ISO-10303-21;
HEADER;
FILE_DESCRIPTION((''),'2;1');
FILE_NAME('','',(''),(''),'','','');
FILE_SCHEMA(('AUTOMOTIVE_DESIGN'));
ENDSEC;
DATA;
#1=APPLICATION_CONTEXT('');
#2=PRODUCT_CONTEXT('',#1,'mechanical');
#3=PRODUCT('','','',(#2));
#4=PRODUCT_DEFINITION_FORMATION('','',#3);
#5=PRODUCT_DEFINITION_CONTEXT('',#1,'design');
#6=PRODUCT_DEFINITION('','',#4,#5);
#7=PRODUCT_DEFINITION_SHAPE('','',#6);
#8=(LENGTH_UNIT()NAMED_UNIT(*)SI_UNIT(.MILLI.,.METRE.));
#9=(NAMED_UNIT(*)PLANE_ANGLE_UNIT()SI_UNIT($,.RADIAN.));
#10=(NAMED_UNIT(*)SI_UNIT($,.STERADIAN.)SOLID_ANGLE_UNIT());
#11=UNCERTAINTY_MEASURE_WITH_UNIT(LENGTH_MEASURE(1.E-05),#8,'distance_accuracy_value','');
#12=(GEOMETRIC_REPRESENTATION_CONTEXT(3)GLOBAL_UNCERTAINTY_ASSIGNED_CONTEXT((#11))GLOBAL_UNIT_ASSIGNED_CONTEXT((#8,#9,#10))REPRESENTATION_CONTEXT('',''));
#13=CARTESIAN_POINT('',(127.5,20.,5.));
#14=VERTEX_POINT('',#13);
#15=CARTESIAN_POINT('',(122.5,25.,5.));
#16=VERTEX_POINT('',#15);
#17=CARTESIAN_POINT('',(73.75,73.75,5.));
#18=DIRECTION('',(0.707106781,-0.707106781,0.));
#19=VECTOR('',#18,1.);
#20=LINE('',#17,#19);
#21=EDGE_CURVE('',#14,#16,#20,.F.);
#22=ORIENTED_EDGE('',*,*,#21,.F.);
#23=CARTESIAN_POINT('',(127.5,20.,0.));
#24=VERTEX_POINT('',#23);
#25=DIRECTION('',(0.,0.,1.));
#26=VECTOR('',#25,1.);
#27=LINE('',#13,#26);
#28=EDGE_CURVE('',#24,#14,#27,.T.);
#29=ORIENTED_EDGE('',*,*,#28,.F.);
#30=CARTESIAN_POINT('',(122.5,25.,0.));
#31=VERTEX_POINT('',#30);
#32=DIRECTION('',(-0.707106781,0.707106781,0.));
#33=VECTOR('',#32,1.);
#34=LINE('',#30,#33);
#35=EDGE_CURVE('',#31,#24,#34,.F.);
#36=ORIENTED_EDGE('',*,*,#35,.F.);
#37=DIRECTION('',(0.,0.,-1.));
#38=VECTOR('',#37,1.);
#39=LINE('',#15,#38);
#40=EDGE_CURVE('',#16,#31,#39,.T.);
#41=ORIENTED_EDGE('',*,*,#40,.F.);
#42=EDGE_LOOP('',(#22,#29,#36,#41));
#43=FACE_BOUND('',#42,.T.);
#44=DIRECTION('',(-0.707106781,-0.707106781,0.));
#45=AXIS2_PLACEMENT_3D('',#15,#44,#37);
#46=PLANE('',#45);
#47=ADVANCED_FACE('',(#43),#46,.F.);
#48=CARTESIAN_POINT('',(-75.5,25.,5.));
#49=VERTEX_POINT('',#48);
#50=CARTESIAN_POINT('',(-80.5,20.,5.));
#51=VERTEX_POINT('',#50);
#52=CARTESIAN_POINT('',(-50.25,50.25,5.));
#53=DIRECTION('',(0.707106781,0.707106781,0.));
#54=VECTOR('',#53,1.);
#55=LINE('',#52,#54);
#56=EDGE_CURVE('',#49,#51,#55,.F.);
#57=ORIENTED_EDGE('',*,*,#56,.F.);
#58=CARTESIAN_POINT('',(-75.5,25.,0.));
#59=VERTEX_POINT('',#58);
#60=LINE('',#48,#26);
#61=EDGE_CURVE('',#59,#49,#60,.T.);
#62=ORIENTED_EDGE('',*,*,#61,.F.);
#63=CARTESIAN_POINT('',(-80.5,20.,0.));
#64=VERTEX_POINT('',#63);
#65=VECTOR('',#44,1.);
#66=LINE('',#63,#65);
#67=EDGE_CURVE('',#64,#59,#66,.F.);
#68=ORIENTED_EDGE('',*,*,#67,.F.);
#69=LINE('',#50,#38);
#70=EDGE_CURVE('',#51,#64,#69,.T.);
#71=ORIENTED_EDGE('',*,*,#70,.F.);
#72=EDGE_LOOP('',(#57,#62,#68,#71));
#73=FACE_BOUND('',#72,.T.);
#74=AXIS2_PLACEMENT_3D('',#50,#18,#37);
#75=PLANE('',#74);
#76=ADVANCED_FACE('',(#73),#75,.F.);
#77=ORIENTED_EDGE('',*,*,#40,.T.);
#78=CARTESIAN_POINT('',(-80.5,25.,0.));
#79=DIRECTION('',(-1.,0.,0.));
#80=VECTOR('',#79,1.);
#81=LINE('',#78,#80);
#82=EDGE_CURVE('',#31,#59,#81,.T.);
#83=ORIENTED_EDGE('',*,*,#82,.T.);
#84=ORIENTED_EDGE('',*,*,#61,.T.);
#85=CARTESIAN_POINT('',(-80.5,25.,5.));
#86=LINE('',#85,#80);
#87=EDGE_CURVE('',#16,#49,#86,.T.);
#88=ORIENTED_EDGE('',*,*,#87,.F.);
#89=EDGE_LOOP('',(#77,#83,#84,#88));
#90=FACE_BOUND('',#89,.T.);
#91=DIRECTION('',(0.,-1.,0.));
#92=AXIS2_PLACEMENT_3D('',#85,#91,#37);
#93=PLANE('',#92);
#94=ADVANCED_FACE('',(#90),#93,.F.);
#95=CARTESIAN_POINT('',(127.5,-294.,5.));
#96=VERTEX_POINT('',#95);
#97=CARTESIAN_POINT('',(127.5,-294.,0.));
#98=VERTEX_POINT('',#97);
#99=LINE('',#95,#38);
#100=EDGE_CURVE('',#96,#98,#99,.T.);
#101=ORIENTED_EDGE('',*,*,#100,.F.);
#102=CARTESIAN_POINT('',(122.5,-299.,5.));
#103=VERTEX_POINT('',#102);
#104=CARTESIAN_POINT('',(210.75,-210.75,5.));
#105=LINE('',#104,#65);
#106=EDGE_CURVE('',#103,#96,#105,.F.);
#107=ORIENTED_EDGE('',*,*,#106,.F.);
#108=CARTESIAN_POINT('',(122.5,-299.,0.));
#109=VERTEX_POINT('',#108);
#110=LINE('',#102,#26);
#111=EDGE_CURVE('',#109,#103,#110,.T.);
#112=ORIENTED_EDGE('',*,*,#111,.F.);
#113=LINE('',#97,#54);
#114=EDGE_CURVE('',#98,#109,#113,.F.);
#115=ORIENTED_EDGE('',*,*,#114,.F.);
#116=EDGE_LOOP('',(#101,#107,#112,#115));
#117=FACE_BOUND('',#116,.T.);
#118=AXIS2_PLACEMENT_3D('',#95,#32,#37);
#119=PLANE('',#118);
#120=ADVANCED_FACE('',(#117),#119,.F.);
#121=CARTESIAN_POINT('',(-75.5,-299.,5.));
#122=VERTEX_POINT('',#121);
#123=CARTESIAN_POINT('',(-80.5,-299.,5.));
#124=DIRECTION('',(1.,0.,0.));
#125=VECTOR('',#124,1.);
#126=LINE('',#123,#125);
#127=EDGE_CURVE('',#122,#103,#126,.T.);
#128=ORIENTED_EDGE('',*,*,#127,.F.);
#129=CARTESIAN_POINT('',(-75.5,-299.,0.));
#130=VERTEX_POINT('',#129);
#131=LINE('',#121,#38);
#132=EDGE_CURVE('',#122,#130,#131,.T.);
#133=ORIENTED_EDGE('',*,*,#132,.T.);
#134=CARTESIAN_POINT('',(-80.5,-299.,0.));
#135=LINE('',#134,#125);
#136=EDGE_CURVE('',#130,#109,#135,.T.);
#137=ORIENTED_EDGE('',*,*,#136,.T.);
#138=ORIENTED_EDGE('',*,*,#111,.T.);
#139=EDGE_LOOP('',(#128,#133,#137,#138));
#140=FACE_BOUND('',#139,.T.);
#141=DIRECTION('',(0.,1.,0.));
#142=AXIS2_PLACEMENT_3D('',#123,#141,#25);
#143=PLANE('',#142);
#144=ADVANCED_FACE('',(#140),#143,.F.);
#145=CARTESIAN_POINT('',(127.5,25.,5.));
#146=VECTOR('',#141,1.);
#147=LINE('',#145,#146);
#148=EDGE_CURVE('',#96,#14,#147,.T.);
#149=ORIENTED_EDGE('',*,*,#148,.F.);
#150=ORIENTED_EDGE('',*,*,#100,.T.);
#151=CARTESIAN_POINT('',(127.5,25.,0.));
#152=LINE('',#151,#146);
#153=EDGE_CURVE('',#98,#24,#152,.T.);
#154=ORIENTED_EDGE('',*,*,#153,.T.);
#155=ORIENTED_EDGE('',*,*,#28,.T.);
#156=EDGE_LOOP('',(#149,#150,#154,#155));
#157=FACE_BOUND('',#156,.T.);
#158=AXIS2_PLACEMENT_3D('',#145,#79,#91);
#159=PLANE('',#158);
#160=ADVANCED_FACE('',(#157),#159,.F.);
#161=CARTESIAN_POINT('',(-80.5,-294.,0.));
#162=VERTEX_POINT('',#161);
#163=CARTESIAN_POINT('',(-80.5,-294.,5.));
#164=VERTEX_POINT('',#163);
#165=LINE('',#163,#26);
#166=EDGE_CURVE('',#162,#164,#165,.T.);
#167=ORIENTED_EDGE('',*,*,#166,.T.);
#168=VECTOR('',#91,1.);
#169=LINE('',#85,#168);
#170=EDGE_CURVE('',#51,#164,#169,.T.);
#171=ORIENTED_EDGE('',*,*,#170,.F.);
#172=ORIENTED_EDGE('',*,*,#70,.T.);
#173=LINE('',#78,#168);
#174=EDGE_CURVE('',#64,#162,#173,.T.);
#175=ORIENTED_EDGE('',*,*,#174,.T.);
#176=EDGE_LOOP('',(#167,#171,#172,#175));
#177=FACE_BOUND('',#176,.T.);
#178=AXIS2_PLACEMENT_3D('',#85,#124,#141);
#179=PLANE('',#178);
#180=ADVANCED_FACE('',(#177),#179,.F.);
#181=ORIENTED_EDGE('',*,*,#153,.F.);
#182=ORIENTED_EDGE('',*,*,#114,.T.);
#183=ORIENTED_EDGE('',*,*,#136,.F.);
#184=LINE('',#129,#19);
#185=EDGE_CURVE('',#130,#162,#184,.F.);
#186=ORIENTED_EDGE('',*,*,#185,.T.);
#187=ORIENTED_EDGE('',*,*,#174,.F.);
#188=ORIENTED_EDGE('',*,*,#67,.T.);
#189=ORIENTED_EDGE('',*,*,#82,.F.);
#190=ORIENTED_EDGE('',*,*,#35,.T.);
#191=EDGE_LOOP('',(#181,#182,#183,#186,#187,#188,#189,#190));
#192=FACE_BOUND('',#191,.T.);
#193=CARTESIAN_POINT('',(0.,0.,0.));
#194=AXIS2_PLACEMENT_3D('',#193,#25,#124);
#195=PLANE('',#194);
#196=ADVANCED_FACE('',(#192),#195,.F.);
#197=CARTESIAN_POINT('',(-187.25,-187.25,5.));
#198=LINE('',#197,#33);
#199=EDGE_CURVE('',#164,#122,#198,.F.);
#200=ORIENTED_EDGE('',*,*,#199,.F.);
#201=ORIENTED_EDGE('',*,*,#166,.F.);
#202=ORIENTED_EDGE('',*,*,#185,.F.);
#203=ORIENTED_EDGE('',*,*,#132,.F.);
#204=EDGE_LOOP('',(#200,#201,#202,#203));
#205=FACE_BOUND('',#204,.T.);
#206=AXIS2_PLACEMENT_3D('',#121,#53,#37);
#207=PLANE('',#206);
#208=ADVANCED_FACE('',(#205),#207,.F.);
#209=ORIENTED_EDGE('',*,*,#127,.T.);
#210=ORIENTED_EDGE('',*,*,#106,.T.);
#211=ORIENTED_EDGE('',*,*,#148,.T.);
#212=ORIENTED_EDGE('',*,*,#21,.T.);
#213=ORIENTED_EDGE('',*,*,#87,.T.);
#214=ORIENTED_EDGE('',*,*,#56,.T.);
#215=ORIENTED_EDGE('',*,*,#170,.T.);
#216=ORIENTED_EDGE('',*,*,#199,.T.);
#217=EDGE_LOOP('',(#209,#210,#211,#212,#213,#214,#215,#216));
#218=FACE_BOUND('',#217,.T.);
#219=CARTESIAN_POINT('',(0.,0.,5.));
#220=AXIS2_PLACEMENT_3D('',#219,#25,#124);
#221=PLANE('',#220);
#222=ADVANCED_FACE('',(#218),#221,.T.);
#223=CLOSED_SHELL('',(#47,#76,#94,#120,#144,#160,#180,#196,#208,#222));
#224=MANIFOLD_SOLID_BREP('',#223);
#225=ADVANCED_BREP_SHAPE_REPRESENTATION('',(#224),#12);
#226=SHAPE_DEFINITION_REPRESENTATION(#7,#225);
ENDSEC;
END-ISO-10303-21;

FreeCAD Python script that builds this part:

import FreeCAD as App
import Part
import Sketcher
from FreeCAD import Vector
Q = App.Units.Quantity


def edges_at(feature, points):
    """Names of the edges that pass closest to the given points."""
    edges = feature.Shape.Edges
    near = lambda p: min(range(len(edges)), key=lambda i: edges[i].distToShape(Part.Vertex(*p))[0])
    return sorted({f"Edge{near(p) + 1}" for p in points})


def add_polygon(sketch, points):
    """Adds a closed chain of lines whose ends are joined by coincident constraints."""
    first, n = sketch.GeometryCount, len(points)
    for a, b in zip(points, points[1:] + points[:1]):
        sketch.addGeometry(Part.LineSegment(App.Vector(*a, 0), App.Vector(*b, 0)), False)
    for i in range(n):
        sketch.addConstraint(Sketcher.Constraint("Coincident", first + i, 2, first + (i + 1) % n, 1))

doc = App.newDocument("Part")
params = doc.addObject("Spreadsheet::Sheet", "Params")
for row, (alias, value) in enumerate([
    ("sketch1_width", "208 mm"),
    ("sketch1_height", "324 mm"),
    ("pad1_length", "5 mm"),
    ("chamfer_size", "5 mm"),
], start=1):
    params.set(f"A{row}", alias)
    params.set(f"B{row}", "=" + value)
    params.setAlias(f"B{row}", alias)

body = doc.addObject("PartDesign::Body", "Body")

sketch1 = body.newObject("Sketcher::SketchObject", "Sketch")
sketch1.AttachmentSupport = (doc.getObject("XY_Plane"), [""])
sketch1.MapMode = "FlatFace"
add_polygon(sketch1, [(-80, 25), (-80, -299), (128, -299), (128, 25)])
sketch1.addConstraint([
    Sketcher.Constraint("Vertical", 0),
    Sketcher.Constraint("Horizontal", 1),
    Sketcher.Constraint("Vertical", 2),
    Sketcher.Constraint("Horizontal", 3),
    Sketcher.Constraint("DistanceX", 1, 1, 1, 2, Q("208 mm")),
    Sketcher.Constraint("DistanceY", 0, 2, 0, 1, Q("324 mm")),
    Sketcher.Constraint("DistanceY", 0, 2, -1, 1, Q("299 mm")),
    Sketcher.Constraint("DistanceX", 0, 2, -1, 1, Q("80.5 mm")),
])
sketch1.setExpression("Constraints[8]", "Params.sketch1_width")
sketch1.setExpression("Constraints[9]", "Params.sketch1_height")
pad1 = body.newObject("PartDesign::Pad", "Pad")
pad1.Profile = sketch1
pad1.setExpression("Length", "Params.pad1_length")
doc.recompute()

chamfer = body.newObject("PartDesign::Chamfer", "Chamfer")
chamfer.Base = (pad1, edges_at(pad1, [
    (-80.5, 25, 2.5),
    (127.5, 25, 2.5),
    (127.5, -299, 2.5),
    (-80.5, -299, 2.5),
]))
chamfer.setExpression("Size", "Params.chamfer_size")

doc.recompute()
